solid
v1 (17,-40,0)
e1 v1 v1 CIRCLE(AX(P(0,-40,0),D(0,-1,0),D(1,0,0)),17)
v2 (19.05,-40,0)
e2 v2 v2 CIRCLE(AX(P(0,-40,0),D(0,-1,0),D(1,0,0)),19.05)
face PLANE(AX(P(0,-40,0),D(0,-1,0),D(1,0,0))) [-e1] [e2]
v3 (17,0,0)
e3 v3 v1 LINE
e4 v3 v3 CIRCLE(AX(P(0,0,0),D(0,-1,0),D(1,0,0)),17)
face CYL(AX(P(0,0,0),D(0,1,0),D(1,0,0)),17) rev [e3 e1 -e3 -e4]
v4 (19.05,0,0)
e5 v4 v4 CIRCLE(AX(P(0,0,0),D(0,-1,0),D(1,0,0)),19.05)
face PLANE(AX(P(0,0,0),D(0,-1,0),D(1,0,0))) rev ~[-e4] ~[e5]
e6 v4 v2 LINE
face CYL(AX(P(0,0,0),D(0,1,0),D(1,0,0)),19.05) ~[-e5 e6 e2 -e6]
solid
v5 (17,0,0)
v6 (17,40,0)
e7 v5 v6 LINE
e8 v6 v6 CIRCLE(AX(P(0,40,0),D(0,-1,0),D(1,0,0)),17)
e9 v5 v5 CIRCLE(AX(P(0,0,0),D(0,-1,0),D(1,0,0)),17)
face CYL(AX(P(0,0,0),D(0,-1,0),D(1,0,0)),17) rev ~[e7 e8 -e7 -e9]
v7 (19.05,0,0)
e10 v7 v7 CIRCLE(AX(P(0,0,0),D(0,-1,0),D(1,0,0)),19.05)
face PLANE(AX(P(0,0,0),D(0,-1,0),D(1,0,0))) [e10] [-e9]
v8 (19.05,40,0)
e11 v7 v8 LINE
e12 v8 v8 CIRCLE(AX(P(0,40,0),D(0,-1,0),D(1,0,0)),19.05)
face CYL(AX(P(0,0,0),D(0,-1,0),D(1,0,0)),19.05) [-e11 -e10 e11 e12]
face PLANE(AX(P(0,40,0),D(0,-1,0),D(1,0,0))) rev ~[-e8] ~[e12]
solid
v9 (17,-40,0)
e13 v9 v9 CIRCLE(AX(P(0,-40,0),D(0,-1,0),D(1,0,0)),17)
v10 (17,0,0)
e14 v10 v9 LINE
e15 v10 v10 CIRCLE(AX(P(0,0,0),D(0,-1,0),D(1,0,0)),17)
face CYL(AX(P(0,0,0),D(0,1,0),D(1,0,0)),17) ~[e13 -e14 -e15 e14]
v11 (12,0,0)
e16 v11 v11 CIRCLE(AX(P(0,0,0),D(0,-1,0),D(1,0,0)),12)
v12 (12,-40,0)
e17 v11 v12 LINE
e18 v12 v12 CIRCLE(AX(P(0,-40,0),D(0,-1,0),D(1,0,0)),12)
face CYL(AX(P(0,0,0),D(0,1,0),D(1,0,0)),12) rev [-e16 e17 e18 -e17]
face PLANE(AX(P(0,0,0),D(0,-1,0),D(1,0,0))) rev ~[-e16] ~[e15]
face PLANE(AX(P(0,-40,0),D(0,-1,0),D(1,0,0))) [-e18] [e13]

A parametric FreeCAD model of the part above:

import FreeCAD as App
import Part
import Sketcher

V = App.Vector
Q = App.Units.Quantity

doc = App.newDocument("Part")
body = doc.addObject("PartDesign::Body", "Body")

# Sketch on XZ plane
sketch1 = doc.addObject("Sketcher::SketchObject", "Sketch")
body.addObject(sketch1)
sketch1.AttachmentSupport = (doc.XZ_Plane, [""])
sketch1.MapMode = "FlatFace"
sketch1.addGeometry(Part.Circle(V(0, 0, 0), V(0, 0, 1), 17), False)
sketch1.addGeometry(Part.Circle(V(0, 0, 0), V(0, 0, 1), 12), False)
sketch1.addConstraint(Sketcher.Constraint("Coincident", 0, 3, -1, 1))
sketch1.addConstraint(Sketcher.Constraint("Coincident", 1, 3, -1, 1))
sketch1.addConstraint(Sketcher.Constraint("Diameter", 0, Q("34 mm")))
sketch1.addConstraint(Sketcher.Constraint("Diameter", 1, Q("24 mm")))
pad1 = doc.addObject("PartDesign::Pad", "Pad")
body.addObject(pad1)
pad1.Profile = sketch1
pad1.Length = 40
body2 = doc.addObject("PartDesign::Body", "Body001")

# Sketch on XZ plane
sketch2 = doc.addObject("Sketcher::SketchObject", "Sketch001")
body2.addObject(sketch2)
sketch2.AttachmentSupport = (doc.getObject("XZ_Plane001"), [""])
sketch2.MapMode = "FlatFace"
sketch2.addGeometry(Part.Circle(V(0, 0, 0), V(0, 0, 1), 19), False)
sketch2.addGeometry(Part.Circle(V(0, 0, 0), V(0, 0, 1), 17), False)
sketch2.addConstraint(Sketcher.Constraint("Coincident", 0, 3, -1, 1))
sketch2.addConstraint(Sketcher.Constraint("Coincident", 1, 3, -1, 1))
sketch2.addConstraint(Sketcher.Constraint("Diameter", 1, Q("34 mm")))
sketch2.addConstraint(Sketcher.Constraint("Diameter", 0, Q("38.1 mm")))
pad2 = doc.addObject("PartDesign::Pad", "Pad001")
body2.addObject(pad2)
pad2.Profile = sketch2
pad2.Length = 40
pad2.Reversed = True
body3 = doc.addObject("PartDesign::Body", "Body002")

# Sketch on XZ plane
sketch3 = doc.addObject("Sketcher::SketchObject", "Sketch002")
body3.addObject(sketch3)
sketch3.AttachmentSupport = (doc.getObject("XZ_Plane002"), [""])
sketch3.MapMode = "FlatFace"
sketch3.addGeometry(Part.Circle(V(0, 0, 0), V(0, 0, 1), 19), False)
sketch3.addGeometry(Part.Circle(V(0, 0, 0), V(0, 0, 1), 17), False)
sketch3.addConstraint(Sketcher.Constraint("Coincident", 0, 3, -1, 1))
sketch3.addConstraint(Sketcher.Constraint("Coincident", 1, 3, -1, 1))
sketch3.addConstraint(Sketcher.Constraint("Diameter", 1, Q("34 mm")))
sketch3.addConstraint(Sketcher.Constraint("Diameter", 0, Q("38.1 mm")))
pad3 = doc.addObject("PartDesign::Pad", "Pad002")
body3.addObject(pad3)
pad3.Profile = sketch3
pad3.Length = 40

doc.recompute()
